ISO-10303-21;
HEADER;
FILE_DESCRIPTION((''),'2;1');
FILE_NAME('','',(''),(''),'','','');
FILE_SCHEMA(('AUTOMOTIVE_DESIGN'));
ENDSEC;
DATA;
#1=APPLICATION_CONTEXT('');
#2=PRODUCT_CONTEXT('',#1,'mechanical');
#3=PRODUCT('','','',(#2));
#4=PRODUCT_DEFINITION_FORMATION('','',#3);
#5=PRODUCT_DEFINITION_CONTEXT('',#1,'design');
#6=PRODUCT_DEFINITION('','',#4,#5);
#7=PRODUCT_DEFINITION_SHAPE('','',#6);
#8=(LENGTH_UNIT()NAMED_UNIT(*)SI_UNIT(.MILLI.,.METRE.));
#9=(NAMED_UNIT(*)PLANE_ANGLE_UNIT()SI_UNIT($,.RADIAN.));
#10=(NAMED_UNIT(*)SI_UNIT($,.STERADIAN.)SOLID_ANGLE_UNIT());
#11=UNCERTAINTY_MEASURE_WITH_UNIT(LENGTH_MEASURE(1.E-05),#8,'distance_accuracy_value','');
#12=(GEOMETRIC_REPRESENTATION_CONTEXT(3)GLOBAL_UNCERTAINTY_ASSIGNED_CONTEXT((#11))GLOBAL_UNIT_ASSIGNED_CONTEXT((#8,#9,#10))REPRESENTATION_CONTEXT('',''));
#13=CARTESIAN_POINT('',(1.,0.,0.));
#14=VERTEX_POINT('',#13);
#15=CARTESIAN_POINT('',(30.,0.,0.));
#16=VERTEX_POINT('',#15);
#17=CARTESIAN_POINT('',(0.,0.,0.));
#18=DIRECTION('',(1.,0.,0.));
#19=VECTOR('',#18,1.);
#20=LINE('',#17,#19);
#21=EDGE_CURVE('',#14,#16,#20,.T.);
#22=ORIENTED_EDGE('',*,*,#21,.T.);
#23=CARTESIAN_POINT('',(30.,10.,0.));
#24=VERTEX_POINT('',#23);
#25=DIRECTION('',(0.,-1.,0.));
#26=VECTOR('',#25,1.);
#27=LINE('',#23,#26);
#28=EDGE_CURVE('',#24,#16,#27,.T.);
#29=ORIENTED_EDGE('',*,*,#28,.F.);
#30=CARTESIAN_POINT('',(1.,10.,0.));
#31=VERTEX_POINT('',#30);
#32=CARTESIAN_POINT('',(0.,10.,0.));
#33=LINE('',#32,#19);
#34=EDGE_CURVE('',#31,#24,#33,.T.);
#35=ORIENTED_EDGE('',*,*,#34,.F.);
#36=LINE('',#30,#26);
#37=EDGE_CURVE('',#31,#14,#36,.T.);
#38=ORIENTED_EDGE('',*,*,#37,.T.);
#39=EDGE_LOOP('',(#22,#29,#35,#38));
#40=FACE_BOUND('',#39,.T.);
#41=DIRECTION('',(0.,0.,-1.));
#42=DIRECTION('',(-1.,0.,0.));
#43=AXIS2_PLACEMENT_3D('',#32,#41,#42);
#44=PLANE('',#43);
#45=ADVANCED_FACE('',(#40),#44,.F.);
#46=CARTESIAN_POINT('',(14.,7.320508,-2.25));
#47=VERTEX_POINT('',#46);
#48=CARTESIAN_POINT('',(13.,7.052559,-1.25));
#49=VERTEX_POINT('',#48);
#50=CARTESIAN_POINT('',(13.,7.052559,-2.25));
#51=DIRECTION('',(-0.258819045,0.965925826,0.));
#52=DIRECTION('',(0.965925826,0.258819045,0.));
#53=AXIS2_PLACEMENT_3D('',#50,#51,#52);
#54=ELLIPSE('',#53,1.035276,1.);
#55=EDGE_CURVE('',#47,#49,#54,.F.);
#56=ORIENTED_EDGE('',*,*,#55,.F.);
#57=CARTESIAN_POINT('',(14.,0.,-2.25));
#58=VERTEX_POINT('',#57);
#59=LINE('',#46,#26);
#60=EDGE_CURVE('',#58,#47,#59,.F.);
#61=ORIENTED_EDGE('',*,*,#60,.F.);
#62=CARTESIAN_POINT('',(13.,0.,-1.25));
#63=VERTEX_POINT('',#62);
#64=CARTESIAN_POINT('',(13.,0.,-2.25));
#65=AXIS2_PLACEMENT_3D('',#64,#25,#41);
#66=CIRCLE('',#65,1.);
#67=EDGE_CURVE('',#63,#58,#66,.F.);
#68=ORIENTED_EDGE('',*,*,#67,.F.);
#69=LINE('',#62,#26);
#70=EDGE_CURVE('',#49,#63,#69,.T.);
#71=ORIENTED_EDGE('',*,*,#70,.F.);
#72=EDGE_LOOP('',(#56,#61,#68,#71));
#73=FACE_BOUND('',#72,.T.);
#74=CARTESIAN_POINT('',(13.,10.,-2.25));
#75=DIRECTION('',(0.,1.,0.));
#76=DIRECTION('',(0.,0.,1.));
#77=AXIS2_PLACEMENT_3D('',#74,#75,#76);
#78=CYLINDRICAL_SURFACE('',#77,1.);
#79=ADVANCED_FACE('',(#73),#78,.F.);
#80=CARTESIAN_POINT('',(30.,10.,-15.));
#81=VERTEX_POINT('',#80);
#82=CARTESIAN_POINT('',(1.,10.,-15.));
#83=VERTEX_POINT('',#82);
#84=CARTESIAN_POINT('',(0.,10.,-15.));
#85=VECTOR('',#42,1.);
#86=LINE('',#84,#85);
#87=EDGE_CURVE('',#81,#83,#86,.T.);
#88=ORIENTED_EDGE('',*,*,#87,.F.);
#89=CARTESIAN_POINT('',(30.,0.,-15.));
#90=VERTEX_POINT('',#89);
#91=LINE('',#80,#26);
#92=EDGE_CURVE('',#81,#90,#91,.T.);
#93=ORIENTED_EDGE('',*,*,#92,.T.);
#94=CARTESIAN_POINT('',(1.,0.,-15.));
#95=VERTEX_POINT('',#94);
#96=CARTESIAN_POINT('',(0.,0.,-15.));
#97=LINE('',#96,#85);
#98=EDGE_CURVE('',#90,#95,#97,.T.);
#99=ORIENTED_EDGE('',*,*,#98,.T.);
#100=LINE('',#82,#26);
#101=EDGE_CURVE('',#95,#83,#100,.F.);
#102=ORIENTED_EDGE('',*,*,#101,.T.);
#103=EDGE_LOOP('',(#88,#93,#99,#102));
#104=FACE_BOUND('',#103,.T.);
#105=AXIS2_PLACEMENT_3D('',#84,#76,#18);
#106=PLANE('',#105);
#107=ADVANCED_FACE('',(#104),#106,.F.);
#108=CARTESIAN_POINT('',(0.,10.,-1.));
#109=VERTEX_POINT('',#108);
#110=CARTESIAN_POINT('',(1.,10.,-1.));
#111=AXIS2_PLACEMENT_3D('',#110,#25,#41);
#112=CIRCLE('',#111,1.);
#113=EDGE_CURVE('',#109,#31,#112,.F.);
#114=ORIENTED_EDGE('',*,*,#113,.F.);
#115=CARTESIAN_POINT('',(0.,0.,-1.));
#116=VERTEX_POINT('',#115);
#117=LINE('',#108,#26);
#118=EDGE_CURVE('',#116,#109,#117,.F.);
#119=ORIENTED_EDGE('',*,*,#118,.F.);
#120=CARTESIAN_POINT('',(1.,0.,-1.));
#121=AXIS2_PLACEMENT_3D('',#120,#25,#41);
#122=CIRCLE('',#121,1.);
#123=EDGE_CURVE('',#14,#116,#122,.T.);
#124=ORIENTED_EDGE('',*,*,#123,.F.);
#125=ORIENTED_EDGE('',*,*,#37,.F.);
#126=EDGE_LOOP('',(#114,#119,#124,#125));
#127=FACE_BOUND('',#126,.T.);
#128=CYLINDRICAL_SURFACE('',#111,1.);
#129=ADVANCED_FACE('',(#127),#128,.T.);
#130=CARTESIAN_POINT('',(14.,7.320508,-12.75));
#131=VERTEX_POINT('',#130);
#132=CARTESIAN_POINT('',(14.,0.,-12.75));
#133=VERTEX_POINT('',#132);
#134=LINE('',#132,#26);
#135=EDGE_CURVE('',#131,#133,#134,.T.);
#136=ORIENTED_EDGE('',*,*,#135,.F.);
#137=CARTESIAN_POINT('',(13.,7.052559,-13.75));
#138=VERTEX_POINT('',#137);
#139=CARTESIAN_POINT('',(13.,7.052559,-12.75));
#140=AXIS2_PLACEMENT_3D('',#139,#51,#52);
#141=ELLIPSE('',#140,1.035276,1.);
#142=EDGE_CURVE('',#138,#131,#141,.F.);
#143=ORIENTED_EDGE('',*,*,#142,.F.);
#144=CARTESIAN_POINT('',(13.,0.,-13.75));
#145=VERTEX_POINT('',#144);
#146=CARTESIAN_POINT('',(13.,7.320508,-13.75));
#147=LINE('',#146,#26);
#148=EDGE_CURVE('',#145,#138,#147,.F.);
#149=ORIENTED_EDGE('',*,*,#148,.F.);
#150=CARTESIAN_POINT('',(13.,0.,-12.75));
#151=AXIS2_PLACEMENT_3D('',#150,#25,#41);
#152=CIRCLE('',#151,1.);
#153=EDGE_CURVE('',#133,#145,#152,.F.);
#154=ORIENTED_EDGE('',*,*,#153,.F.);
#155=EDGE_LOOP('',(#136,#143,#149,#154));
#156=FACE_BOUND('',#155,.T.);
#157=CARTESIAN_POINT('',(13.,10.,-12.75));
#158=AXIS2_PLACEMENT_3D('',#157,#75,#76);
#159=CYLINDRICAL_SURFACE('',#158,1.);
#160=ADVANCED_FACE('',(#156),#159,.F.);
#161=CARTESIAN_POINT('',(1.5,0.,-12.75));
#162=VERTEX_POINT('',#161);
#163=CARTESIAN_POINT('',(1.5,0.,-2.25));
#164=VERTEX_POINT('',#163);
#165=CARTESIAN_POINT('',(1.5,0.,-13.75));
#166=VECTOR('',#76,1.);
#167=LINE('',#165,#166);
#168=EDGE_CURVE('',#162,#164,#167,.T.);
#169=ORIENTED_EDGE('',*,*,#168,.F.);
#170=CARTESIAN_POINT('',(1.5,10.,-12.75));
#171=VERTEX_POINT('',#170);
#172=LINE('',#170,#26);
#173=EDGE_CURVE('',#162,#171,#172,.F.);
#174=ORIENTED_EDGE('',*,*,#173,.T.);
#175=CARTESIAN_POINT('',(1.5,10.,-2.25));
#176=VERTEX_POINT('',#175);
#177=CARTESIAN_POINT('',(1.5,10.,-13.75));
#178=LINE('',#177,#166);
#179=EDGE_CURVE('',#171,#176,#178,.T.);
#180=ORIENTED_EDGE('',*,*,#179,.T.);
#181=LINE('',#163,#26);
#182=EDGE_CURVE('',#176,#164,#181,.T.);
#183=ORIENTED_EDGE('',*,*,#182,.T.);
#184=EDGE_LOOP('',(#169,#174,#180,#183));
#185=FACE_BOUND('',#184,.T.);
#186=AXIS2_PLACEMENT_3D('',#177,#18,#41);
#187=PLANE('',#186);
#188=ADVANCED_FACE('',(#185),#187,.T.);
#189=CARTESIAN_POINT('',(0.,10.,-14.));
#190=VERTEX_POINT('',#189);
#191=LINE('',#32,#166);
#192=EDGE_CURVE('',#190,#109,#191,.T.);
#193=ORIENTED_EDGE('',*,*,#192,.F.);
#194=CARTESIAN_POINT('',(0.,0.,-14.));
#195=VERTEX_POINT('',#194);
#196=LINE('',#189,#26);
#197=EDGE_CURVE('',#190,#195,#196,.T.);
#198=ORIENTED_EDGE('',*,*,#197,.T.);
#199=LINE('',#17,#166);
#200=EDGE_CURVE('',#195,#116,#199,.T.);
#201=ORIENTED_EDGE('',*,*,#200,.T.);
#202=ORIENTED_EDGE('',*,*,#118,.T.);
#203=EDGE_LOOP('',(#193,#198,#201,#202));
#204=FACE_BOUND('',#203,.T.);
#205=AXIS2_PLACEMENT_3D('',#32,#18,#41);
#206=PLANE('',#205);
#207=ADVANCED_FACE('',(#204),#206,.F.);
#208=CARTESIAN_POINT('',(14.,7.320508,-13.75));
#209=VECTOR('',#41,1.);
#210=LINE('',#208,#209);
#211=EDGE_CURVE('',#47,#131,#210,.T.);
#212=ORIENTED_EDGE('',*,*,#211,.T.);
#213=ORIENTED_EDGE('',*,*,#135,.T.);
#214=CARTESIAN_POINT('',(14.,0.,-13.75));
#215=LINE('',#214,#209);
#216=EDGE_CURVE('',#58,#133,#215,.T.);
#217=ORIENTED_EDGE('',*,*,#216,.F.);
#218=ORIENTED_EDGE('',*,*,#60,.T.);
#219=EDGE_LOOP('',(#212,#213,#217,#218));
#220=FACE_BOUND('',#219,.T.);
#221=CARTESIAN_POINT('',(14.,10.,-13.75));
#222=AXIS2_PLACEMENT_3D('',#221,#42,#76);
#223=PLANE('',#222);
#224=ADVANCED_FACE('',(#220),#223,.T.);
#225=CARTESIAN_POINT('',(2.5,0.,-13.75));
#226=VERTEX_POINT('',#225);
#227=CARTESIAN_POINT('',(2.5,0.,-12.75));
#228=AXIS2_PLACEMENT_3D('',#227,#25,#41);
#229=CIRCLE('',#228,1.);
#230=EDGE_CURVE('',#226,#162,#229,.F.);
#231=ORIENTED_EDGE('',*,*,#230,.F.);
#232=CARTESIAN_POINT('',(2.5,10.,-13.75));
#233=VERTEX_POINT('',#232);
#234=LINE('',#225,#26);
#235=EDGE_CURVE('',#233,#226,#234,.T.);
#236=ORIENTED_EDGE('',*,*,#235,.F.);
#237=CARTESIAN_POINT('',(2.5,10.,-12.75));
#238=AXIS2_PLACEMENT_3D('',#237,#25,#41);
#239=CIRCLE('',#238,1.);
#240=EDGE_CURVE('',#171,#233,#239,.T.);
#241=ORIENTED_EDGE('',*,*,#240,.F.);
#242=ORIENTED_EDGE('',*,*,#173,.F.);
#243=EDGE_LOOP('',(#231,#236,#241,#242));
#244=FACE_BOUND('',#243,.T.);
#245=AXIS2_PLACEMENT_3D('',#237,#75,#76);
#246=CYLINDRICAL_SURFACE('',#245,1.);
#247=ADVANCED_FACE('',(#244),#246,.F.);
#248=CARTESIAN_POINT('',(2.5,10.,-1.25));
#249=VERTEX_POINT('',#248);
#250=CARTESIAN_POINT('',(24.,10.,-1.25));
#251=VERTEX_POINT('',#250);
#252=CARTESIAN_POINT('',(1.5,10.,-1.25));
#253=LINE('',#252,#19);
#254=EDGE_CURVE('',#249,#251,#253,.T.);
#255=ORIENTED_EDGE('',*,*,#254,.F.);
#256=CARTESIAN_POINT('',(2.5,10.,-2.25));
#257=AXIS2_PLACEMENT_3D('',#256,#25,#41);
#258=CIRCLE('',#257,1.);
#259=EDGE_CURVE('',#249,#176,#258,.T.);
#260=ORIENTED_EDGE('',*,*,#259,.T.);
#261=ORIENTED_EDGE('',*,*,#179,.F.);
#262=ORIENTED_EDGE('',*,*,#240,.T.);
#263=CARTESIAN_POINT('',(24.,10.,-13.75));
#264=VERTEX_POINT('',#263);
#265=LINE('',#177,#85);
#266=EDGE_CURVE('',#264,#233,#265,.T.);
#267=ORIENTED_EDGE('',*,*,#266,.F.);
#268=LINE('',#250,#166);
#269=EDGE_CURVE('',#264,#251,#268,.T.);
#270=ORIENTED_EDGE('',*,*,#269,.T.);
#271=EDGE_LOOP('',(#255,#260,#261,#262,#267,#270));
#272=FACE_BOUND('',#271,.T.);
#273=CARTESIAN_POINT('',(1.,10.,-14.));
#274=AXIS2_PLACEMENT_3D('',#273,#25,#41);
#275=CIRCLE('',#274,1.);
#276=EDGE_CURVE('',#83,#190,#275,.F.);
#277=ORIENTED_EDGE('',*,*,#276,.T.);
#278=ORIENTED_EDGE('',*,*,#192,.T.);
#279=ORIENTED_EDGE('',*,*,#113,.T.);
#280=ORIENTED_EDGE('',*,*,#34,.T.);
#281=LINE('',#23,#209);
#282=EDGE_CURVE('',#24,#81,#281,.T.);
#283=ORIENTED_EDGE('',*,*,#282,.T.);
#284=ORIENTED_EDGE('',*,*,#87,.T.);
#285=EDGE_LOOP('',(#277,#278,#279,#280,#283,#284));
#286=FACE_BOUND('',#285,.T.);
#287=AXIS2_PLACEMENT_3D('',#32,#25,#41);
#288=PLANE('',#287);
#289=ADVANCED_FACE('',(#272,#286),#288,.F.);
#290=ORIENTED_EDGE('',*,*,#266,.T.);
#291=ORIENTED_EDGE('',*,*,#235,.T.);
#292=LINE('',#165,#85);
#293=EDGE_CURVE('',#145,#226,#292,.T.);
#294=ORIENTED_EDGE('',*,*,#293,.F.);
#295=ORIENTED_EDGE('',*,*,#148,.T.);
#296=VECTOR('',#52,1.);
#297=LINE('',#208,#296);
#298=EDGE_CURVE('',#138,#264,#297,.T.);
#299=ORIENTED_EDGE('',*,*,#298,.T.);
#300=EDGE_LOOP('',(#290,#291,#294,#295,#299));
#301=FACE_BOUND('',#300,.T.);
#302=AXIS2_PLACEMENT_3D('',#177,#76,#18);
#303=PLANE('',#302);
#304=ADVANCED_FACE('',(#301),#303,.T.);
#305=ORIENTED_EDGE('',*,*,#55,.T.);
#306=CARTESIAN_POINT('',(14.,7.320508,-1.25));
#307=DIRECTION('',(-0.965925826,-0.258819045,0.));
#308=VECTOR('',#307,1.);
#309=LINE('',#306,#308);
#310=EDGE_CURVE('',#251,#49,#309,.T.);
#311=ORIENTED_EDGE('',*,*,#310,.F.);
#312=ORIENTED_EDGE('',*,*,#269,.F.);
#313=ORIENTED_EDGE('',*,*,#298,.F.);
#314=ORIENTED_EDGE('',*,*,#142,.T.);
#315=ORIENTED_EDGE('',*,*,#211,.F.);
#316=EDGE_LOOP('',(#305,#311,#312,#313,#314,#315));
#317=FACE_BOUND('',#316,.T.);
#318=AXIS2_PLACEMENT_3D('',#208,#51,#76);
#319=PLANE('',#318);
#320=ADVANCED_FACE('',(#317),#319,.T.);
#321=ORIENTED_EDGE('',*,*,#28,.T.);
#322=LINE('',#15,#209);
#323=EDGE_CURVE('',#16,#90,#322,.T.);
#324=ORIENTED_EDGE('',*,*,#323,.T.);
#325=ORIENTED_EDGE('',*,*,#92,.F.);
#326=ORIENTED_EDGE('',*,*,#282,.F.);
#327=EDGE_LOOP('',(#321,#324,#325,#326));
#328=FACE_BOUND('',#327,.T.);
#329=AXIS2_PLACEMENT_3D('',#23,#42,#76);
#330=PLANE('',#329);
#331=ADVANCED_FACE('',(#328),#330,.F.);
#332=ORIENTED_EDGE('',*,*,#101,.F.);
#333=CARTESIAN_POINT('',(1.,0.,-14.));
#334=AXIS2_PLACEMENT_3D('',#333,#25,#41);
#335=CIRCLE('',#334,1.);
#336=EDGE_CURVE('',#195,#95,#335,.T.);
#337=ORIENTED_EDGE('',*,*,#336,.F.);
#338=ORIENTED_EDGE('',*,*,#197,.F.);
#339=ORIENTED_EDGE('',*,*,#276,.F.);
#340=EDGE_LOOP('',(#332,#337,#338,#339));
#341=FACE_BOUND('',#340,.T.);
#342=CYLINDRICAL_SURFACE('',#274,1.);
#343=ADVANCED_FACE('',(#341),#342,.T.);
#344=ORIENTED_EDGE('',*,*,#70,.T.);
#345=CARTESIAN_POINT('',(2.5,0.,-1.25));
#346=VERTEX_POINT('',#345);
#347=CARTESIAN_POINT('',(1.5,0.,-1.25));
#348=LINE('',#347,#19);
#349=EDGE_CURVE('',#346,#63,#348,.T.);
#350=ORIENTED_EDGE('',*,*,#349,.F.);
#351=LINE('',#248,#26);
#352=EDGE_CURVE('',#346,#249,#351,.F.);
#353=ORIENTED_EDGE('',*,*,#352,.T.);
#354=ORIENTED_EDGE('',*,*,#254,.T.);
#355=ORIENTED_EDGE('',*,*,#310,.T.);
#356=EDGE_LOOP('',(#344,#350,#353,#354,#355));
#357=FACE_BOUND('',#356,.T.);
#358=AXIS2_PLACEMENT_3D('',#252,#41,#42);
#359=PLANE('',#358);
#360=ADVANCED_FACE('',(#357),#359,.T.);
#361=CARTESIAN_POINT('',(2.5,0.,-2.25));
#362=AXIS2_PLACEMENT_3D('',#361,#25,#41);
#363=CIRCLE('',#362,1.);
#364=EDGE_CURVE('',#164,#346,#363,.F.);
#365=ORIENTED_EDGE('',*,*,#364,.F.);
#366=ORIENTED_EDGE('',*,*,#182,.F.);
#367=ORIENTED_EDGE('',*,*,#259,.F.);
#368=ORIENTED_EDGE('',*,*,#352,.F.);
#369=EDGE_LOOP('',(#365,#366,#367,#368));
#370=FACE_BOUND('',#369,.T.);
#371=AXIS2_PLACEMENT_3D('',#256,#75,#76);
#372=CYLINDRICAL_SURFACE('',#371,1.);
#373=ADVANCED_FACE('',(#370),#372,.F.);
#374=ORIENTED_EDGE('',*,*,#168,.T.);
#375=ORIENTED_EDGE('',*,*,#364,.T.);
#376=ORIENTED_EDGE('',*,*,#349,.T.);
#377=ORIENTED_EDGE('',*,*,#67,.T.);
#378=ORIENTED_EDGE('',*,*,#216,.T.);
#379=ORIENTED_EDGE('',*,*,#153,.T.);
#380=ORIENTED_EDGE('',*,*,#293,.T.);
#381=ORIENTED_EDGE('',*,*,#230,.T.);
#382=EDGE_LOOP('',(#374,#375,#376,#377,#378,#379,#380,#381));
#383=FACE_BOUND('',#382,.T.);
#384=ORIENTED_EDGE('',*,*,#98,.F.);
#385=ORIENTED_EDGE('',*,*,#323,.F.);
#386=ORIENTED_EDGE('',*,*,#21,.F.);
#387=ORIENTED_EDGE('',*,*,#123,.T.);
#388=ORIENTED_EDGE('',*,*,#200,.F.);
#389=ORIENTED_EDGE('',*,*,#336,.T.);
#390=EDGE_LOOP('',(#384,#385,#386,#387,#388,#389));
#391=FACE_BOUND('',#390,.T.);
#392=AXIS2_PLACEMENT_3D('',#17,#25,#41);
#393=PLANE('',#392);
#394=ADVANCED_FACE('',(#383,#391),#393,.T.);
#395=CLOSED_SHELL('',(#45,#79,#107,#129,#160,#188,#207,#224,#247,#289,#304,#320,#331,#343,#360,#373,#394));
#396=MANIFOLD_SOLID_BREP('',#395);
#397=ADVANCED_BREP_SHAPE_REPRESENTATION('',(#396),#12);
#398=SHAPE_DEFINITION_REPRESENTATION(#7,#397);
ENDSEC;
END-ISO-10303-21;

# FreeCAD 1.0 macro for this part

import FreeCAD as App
import Part
import Sketcher

V = App.Vector
Q = App.Units.Quantity


def edges_at(feature, points):
    """Names of the edges that pass closest to the given points."""
    edges = feature.Shape.Edges
    near = lambda p: min(range(len(edges)), key=lambda i: edges[i].distToShape(Part.Vertex(*p))[0])
    return sorted({f"Edge{near(p) + 1}" for p in points})


def add_polygon(sketch, points):
    """Adds a closed chain of lines whose ends are joined by coincident constraints."""
    first, n = sketch.GeometryCount, len(points)
    for a, b in zip(points, points[1:] + points[:1]):
        sketch.addGeometry(Part.LineSegment(App.Vector(*a, 0), App.Vector(*b, 0)), False)
    for i in range(n):
        sketch.addConstraint(Sketcher.Constraint("Coincident", first + i, 2, first + (i + 1) % n, 1))

doc = App.newDocument("Part")
params = doc.addObject("Spreadsheet::Sheet", "Params")
for row, (alias, value) in enumerate([
    ("sketch1_width", "30 mm"),
    ("sketch1_height", "15 mm"),
    ("sketch1_width2", "12.5 mm"),
    ("pad1_length", "10 mm"),
    ("chamfer_size", "10 mm"),
    ("chamfer_size2", "2.679492 mm"),
    ("fillet_radius", "1 mm"),
], start=1):
    params.set(f"A{row}", alias)
    params.set(f"B{row}", "=" + value)
    params.setAlias(f"B{row}", alias)

body = doc.addObject("PartDesign::Body", "Body")

sketch1 = doc.addObject("Sketcher::SketchObject", "Sketch")
body.addObject(sketch1)
sketch1.AttachmentSupport = (doc.XZ_Plane, [""])
sketch1.MapMode = "FlatFace"
add_polygon(sketch1, [(0, -15), (0, 0), (30, 0), (30, -15)])
add_polygon(sketch1, [(14, -1), (2, -1), (2, -14), (14, -14)])
sketch1.addConstraint([
    Sketcher.Constraint("Vertical", 0),
    Sketcher.Constraint("Horizontal", 1),
    Sketcher.Constraint("Vertical", 2),
    Sketcher.Constraint("Horizontal", 3),
    Sketcher.Constraint("Horizontal", 4),
    Sketcher.Constraint("Vertical", 5),
    Sketcher.Constraint("Horizontal", 6),
    Sketcher.Constraint("Vertical", 7),
    Sketcher.Constraint("Coincident", 0, 2, -1, 1),
    Sketcher.Constraint("Equal", 6, 5),
    Sketcher.Constraint("DistanceX", 1, 1, 1, 2, Q("30 mm")),
    Sketcher.Constraint("DistanceY", 0, 1, 0, 2, Q("15 mm")),
    Sketcher.Constraint("DistanceX", 4, 2, 4, 1, Q("12.5 mm")),
    Sketcher.Constraint("DistanceX", -1, 1, 6, 2, Q("14 mm")),
    Sketcher.Constraint("DistanceY", 4, 2, -1, 1, Q("1.25 mm")),
])
sketch1.setExpression("Constraints[18]", "Params.sketch1_width")
sketch1.setExpression("Constraints[19]", "Params.sketch1_height")
sketch1.setExpression("Constraints[20]", "Params.sketch1_width2")
pad1 = doc.addObject("PartDesign::Pad", "Pad")
body.addObject(pad1)
pad1.Profile = sketch1
pad1.setExpression("Length", "Params.pad1_length")
pad1.Reversed = True
doc.recompute()

chamfer = doc.addObject("PartDesign::Chamfer", "Chamfer")
body.addObject(chamfer)
chamfer.Base = (pad1, edges_at(pad1, [(14, 10, -7.5)]))
chamfer.ChamferType = "Two distances"
chamfer.setExpression("Size", "Params.chamfer_size")
chamfer.setExpression("Size2", "Params.chamfer_size2")
chamfer.FlipDirection = True
doc.recompute()

fillet = doc.addObject("PartDesign::Fillet", "Fillet")
body.addObject(fillet)
fillet.Base = (chamfer, edges_at(chamfer, [
    (1.5, 5, -13.75),
    (1.5, 5, -1.25),
    (14, 3.66, -1.25),
    (14, 3.66, -13.75),
    (0, 5, -15),
    (0, 5, 0),
]))
fillet.setExpression("Radius", "Params.fillet_radius")

doc.recompute()
